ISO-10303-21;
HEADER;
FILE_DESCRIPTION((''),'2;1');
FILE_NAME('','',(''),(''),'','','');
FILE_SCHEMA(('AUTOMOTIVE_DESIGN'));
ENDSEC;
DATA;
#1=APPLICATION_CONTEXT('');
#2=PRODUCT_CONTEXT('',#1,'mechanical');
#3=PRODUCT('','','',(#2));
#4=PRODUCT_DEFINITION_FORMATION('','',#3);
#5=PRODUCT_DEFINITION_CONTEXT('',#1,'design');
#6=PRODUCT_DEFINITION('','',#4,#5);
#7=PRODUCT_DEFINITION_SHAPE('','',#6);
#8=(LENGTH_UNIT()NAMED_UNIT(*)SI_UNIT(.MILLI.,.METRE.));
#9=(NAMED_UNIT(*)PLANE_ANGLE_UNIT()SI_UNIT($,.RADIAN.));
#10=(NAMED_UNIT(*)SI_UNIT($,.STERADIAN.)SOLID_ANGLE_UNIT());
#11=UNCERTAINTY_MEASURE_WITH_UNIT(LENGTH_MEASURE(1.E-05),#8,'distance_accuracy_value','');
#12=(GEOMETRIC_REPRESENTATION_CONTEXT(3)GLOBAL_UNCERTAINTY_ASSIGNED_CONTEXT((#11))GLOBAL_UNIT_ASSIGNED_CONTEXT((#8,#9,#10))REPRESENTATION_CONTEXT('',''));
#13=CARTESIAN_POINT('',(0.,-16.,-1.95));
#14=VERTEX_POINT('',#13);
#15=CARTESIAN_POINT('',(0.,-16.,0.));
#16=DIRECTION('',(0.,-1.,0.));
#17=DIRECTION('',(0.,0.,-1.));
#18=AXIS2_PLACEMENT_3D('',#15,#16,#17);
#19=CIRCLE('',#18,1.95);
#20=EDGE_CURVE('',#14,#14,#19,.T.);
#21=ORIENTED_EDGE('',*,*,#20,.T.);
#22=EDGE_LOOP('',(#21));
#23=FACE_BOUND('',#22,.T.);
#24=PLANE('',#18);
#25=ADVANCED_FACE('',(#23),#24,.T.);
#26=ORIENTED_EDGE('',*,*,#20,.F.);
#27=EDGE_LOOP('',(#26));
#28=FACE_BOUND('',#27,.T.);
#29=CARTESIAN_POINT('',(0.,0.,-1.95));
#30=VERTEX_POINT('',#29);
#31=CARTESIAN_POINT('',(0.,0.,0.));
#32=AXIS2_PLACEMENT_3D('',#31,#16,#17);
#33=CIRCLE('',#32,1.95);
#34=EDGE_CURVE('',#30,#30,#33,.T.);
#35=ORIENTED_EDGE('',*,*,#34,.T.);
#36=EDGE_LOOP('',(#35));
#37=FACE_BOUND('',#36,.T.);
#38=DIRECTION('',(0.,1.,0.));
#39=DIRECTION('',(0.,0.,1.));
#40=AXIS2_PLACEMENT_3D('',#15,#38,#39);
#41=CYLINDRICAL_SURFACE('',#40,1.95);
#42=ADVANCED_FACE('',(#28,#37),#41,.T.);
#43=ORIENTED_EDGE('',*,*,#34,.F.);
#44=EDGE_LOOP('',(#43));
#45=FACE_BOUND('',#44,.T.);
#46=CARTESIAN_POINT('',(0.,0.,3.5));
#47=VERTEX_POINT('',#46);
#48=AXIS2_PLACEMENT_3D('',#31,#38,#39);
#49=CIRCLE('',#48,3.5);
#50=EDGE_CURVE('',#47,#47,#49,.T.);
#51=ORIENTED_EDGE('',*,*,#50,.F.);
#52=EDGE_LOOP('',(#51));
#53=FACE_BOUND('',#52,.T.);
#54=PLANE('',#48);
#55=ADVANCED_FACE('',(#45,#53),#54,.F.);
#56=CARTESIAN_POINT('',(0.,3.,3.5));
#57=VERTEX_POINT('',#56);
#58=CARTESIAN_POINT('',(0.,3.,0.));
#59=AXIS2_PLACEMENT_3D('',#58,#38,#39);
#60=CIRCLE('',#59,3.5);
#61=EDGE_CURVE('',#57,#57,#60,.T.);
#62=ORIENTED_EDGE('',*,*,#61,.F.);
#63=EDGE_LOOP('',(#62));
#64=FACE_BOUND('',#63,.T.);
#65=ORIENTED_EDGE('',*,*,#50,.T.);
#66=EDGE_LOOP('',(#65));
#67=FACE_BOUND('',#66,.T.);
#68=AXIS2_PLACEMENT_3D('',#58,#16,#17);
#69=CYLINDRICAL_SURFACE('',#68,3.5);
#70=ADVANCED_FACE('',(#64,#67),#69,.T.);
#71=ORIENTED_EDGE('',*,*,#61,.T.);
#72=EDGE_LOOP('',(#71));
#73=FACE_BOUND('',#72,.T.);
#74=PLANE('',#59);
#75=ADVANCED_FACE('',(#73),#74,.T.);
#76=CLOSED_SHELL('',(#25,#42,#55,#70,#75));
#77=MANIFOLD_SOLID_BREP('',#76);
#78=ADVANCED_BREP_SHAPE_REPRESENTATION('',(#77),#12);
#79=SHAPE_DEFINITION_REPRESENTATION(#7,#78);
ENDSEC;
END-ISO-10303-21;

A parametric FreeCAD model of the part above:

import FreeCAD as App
import Part
import Sketcher
Q = App.Units.Quantity

doc = App.newDocument("Part")
body = doc.addObject("PartDesign::Body", "Body")

# Sketch on XZ plane
sketch1 = doc.addObject("Sketcher::SketchObject", "Sketch")
body.addObject(sketch1)
sketch1.AttachmentSupport = (doc.XZ_Plane, [""])
sketch1.MapMode = "FlatFace"
sketch1.addGeometry(Part.Circle(App.Vector(0, 0, 0), App.Vector(0, 0, 1), 3.5), False)
sketch1.addConstraint(Sketcher.Constraint("Coincident", 0, 3, -1, 1))
sketch1.addConstraint(Sketcher.Constraint("Diameter", 0, Q("7 mm")))
pad1 = doc.addObject("PartDesign::Pad", "Pad")
body.addObject(pad1)
pad1.Profile = sketch1
pad1.Length = 3
pad1.Reversed = True

# Sketch on XZ plane
sketch2 = doc.addObject("Sketcher::SketchObject", "Sketch001")
body.addObject(sketch2)
sketch2.AttachmentSupport = (doc.XZ_Plane, [""])
sketch2.MapMode = "FlatFace"
sketch2.addGeometry(Part.Circle(App.Vector(0, 0, 0), App.Vector(0, 0, 1), 1.9), False)
sketch2.addConstraint(Sketcher.Constraint("Coincident", 0, 3, -1, 1))
sketch2.addConstraint(Sketcher.Constraint("Diameter", 0, Q("3.9 mm")))
pad2 = doc.addObject("PartDesign::Pad", "Pad001")
body.addObject(pad2)
pad2.Profile = sketch2
pad2.Length = 16

doc.recompute()
